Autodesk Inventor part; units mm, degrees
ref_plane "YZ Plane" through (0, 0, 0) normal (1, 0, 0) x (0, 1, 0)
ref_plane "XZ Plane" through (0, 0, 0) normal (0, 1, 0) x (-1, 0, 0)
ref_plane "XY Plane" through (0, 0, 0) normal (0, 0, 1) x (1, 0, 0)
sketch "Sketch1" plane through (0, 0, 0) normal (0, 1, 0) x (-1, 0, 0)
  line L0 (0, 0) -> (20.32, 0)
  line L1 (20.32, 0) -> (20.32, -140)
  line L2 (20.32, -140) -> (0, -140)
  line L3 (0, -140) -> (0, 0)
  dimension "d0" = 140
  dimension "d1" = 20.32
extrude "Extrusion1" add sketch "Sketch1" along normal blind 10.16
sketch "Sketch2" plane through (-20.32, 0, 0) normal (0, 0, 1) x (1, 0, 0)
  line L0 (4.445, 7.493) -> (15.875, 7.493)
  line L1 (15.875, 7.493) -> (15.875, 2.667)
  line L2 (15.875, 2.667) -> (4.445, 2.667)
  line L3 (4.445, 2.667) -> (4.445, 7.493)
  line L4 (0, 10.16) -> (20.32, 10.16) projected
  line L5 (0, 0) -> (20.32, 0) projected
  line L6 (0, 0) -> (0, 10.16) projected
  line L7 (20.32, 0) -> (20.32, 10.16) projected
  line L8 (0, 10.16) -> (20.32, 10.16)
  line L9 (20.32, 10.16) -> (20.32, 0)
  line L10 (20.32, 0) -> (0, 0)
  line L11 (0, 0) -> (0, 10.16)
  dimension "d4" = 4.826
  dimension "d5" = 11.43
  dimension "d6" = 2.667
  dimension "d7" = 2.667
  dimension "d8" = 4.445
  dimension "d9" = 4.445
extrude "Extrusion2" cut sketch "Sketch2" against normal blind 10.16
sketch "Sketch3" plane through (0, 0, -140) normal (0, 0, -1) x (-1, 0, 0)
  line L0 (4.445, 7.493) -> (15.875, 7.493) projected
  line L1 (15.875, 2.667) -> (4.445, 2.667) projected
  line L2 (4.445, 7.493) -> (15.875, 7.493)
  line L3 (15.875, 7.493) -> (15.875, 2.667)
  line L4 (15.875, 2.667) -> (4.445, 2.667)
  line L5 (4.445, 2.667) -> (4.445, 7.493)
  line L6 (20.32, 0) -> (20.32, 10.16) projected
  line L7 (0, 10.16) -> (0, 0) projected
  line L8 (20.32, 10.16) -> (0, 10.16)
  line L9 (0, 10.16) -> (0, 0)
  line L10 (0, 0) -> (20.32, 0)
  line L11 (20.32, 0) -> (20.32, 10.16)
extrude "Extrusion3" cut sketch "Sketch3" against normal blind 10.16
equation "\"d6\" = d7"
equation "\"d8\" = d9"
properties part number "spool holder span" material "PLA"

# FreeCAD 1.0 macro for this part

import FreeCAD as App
import Part
import Sketcher
from FreeCAD import Vector
Q = App.Units.Quantity


def add_polygon(sketch, points):
    """Adds a closed chain of lines whose ends are joined by coincident constraints."""
    first, n = sketch.GeometryCount, len(points)
    for a, b in zip(points, points[1:] + points[:1]):
        sketch.addGeometry(Part.LineSegment(App.Vector(*a, 0), App.Vector(*b, 0)), False)
    for i in range(n):
        sketch.addConstraint(Sketcher.Constraint("Coincident", first + i, 2, first + (i + 1) % n, 1))

doc = App.newDocument("Part")
body = doc.addObject("PartDesign::Body", "Body")

# Sketch on XZ plane
sketch1 = body.newObject("Sketcher::SketchObject", "Sketch")
sketch1.AttachmentSupport = (doc.getObject("XZ_Plane"), [""])
sketch1.MapMode = "FlatFace"
add_polygon(sketch1, [(-20.32, 0), (0, 0), (0, -140), (-20.32, -140)])  # lines 0-3
sketch1.addConstraint(Sketcher.Constraint("Horizontal", 0))
sketch1.addConstraint(Sketcher.Constraint("Vertical", 1))
sketch1.addConstraint(Sketcher.Constraint("Horizontal", 2))
sketch1.addConstraint(Sketcher.Constraint("Vertical", 3))
sketch1.addConstraint(Sketcher.Constraint("Coincident", 0, 2, -1, 1))
sketch1.addConstraint(Sketcher.Constraint("DistanceX", 0, 1, 0, 2, Q("0.8 in")))
sketch1.addConstraint(Sketcher.Constraint("DistanceY", 1, 2, 1, 1, Q("5.5118 in")))
pad1 = body.newObject("PartDesign::Pad", "Pad")
pad1.Profile = sketch1
pad1.Length = Q("0.4 in")
pad1.Reversed = True

# Sketch on XY plane
sketch2 = body.newObject("Sketcher::SketchObject", "Sketch001")
sketch2.AttachmentSupport = (doc.getObject("XY_Plane"), [""])
sketch2.MapMode = "FlatFace"
add_polygon(sketch2, [(0, 10.16), (-20.32, 10.16), (-20.32, 0), (0, 0)])  # lines 0-3
add_polygon(sketch2, [(-15.875, 2.667), (-15.875, 7.493), (-4.445, 7.493), (-4.445, 2.667)])  # lines 4-7
sketch2.addConstraint(Sketcher.Constraint("Horizontal", 0))
sketch2.addConstraint(Sketcher.Constraint("Vertical", 1))
sketch2.addConstraint(Sketcher.Constraint("Horizontal", 2))
sketch2.addConstraint(Sketcher.Constraint("Vertical", 3))
sketch2.addConstraint(Sketcher.Constraint("Vertical", 4))
sketch2.addConstraint(Sketcher.Constraint("Horizontal", 5))
sketch2.addConstraint(Sketcher.Constraint("Vertical", 6))
sketch2.addConstraint(Sketcher.Constraint("Horizontal", 7))
sketch2.addConstraint(Sketcher.Constraint("Coincident", 2, 2, -1, 1))
sketch2.addConstraint(Sketcher.Constraint("DistanceX", 5, 1, 5, 2, Q("0.45 in")))
sketch2.addConstraint(Sketcher.Constraint("DistanceY", 4, 1, 4, 2, Q("0.19 in")))
sketch2.addConstraint(Sketcher.Constraint("DistanceX", 0, 2, 0, 1, Q("0.8 in")))
sketch2.addConstraint(Sketcher.Constraint("DistanceY", 1, 2, 1, 1, Q("0.4 in")))
sketch2.addConstraint(Sketcher.Constraint("DistanceX", 5, 2, -1, 1, Q("0.175 in")))
sketch2.addConstraint(Sketcher.Constraint("DistanceY", -1, 1, 6, 2, Q("0.105 in")))
pocket1 = body.newObject("PartDesign::Pocket", "Pocket")
pocket1.Profile = sketch2
pocket1.Length = Q("0.4 in")

# Sketch on XY plane
sketch3 = body.newObject("Sketcher::SketchObject", "Sketch002")
sketch3.AttachmentSupport = (doc.getObject("XY_Plane"), [""])
sketch3.MapMode = "FlatFace"
sketch3.AttachmentOffset = App.Placement(Vector(0, 0, -5.511811 * 25.4), App.Rotation())
add_polygon(sketch3, [(0, 0), (-20.32, 0), (-20.32, 10.16), (0, 10.16)])  # lines 0-3
add_polygon(sketch3, [(-4.445, 2.667), (-4.445, 7.493), (-15.875, 7.493), (-15.875, 2.667)])  # lines 4-7
sketch3.addConstraint(Sketcher.Constraint("Horizontal", 0))
sketch3.addConstraint(Sketcher.Constraint("Vertical", 1))
sketch3.addConstraint(Sketcher.Constraint("Horizontal", 2))
sketch3.addConstraint(Sketcher.Constraint("Vertical", 3))
sketch3.addConstraint(Sketcher.Constraint("Vertical", 4))
sketch3.addConstraint(Sketcher.Constraint("Horizontal", 5))
sketch3.addConstraint(Sketcher.Constraint("Vertical", 6))
sketch3.addConstraint(Sketcher.Constraint("Horizontal", 7))
sketch3.addConstraint(Sketcher.Constraint("Coincident", 3, 2, -1, 1))
sketch3.addConstraint(Sketcher.Constraint("DistanceX", 0, 2, 0, 1, Q("0.8 in")))
sketch3.addConstraint(Sketcher.Constraint("DistanceY", 1, 1, 1, 2, Q("0.4 in")))
sketch3.addConstraint(Sketcher.Constraint("DistanceX", 5, 2, 5, 1, Q("0.45 in")))
sketch3.addConstraint(Sketcher.Constraint("DistanceY", 4, 1, 4, 2, Q("0.19 in")))
sketch3.addConstraint(Sketcher.Constraint("DistanceX", 4, 2, -1, 1, Q("0.175 in")))
sketch3.addConstraint(Sketcher.Constraint("DistanceY", -1, 1, 4, 2, Q("0.295 in")))
pocket2 = body.newObject("PartDesign::Pocket", "Pocket001")
pocket2.Profile = sketch3
pocket2.Length = Q("0.4 in")
pocket2.Reversed = True

doc.recompute()
